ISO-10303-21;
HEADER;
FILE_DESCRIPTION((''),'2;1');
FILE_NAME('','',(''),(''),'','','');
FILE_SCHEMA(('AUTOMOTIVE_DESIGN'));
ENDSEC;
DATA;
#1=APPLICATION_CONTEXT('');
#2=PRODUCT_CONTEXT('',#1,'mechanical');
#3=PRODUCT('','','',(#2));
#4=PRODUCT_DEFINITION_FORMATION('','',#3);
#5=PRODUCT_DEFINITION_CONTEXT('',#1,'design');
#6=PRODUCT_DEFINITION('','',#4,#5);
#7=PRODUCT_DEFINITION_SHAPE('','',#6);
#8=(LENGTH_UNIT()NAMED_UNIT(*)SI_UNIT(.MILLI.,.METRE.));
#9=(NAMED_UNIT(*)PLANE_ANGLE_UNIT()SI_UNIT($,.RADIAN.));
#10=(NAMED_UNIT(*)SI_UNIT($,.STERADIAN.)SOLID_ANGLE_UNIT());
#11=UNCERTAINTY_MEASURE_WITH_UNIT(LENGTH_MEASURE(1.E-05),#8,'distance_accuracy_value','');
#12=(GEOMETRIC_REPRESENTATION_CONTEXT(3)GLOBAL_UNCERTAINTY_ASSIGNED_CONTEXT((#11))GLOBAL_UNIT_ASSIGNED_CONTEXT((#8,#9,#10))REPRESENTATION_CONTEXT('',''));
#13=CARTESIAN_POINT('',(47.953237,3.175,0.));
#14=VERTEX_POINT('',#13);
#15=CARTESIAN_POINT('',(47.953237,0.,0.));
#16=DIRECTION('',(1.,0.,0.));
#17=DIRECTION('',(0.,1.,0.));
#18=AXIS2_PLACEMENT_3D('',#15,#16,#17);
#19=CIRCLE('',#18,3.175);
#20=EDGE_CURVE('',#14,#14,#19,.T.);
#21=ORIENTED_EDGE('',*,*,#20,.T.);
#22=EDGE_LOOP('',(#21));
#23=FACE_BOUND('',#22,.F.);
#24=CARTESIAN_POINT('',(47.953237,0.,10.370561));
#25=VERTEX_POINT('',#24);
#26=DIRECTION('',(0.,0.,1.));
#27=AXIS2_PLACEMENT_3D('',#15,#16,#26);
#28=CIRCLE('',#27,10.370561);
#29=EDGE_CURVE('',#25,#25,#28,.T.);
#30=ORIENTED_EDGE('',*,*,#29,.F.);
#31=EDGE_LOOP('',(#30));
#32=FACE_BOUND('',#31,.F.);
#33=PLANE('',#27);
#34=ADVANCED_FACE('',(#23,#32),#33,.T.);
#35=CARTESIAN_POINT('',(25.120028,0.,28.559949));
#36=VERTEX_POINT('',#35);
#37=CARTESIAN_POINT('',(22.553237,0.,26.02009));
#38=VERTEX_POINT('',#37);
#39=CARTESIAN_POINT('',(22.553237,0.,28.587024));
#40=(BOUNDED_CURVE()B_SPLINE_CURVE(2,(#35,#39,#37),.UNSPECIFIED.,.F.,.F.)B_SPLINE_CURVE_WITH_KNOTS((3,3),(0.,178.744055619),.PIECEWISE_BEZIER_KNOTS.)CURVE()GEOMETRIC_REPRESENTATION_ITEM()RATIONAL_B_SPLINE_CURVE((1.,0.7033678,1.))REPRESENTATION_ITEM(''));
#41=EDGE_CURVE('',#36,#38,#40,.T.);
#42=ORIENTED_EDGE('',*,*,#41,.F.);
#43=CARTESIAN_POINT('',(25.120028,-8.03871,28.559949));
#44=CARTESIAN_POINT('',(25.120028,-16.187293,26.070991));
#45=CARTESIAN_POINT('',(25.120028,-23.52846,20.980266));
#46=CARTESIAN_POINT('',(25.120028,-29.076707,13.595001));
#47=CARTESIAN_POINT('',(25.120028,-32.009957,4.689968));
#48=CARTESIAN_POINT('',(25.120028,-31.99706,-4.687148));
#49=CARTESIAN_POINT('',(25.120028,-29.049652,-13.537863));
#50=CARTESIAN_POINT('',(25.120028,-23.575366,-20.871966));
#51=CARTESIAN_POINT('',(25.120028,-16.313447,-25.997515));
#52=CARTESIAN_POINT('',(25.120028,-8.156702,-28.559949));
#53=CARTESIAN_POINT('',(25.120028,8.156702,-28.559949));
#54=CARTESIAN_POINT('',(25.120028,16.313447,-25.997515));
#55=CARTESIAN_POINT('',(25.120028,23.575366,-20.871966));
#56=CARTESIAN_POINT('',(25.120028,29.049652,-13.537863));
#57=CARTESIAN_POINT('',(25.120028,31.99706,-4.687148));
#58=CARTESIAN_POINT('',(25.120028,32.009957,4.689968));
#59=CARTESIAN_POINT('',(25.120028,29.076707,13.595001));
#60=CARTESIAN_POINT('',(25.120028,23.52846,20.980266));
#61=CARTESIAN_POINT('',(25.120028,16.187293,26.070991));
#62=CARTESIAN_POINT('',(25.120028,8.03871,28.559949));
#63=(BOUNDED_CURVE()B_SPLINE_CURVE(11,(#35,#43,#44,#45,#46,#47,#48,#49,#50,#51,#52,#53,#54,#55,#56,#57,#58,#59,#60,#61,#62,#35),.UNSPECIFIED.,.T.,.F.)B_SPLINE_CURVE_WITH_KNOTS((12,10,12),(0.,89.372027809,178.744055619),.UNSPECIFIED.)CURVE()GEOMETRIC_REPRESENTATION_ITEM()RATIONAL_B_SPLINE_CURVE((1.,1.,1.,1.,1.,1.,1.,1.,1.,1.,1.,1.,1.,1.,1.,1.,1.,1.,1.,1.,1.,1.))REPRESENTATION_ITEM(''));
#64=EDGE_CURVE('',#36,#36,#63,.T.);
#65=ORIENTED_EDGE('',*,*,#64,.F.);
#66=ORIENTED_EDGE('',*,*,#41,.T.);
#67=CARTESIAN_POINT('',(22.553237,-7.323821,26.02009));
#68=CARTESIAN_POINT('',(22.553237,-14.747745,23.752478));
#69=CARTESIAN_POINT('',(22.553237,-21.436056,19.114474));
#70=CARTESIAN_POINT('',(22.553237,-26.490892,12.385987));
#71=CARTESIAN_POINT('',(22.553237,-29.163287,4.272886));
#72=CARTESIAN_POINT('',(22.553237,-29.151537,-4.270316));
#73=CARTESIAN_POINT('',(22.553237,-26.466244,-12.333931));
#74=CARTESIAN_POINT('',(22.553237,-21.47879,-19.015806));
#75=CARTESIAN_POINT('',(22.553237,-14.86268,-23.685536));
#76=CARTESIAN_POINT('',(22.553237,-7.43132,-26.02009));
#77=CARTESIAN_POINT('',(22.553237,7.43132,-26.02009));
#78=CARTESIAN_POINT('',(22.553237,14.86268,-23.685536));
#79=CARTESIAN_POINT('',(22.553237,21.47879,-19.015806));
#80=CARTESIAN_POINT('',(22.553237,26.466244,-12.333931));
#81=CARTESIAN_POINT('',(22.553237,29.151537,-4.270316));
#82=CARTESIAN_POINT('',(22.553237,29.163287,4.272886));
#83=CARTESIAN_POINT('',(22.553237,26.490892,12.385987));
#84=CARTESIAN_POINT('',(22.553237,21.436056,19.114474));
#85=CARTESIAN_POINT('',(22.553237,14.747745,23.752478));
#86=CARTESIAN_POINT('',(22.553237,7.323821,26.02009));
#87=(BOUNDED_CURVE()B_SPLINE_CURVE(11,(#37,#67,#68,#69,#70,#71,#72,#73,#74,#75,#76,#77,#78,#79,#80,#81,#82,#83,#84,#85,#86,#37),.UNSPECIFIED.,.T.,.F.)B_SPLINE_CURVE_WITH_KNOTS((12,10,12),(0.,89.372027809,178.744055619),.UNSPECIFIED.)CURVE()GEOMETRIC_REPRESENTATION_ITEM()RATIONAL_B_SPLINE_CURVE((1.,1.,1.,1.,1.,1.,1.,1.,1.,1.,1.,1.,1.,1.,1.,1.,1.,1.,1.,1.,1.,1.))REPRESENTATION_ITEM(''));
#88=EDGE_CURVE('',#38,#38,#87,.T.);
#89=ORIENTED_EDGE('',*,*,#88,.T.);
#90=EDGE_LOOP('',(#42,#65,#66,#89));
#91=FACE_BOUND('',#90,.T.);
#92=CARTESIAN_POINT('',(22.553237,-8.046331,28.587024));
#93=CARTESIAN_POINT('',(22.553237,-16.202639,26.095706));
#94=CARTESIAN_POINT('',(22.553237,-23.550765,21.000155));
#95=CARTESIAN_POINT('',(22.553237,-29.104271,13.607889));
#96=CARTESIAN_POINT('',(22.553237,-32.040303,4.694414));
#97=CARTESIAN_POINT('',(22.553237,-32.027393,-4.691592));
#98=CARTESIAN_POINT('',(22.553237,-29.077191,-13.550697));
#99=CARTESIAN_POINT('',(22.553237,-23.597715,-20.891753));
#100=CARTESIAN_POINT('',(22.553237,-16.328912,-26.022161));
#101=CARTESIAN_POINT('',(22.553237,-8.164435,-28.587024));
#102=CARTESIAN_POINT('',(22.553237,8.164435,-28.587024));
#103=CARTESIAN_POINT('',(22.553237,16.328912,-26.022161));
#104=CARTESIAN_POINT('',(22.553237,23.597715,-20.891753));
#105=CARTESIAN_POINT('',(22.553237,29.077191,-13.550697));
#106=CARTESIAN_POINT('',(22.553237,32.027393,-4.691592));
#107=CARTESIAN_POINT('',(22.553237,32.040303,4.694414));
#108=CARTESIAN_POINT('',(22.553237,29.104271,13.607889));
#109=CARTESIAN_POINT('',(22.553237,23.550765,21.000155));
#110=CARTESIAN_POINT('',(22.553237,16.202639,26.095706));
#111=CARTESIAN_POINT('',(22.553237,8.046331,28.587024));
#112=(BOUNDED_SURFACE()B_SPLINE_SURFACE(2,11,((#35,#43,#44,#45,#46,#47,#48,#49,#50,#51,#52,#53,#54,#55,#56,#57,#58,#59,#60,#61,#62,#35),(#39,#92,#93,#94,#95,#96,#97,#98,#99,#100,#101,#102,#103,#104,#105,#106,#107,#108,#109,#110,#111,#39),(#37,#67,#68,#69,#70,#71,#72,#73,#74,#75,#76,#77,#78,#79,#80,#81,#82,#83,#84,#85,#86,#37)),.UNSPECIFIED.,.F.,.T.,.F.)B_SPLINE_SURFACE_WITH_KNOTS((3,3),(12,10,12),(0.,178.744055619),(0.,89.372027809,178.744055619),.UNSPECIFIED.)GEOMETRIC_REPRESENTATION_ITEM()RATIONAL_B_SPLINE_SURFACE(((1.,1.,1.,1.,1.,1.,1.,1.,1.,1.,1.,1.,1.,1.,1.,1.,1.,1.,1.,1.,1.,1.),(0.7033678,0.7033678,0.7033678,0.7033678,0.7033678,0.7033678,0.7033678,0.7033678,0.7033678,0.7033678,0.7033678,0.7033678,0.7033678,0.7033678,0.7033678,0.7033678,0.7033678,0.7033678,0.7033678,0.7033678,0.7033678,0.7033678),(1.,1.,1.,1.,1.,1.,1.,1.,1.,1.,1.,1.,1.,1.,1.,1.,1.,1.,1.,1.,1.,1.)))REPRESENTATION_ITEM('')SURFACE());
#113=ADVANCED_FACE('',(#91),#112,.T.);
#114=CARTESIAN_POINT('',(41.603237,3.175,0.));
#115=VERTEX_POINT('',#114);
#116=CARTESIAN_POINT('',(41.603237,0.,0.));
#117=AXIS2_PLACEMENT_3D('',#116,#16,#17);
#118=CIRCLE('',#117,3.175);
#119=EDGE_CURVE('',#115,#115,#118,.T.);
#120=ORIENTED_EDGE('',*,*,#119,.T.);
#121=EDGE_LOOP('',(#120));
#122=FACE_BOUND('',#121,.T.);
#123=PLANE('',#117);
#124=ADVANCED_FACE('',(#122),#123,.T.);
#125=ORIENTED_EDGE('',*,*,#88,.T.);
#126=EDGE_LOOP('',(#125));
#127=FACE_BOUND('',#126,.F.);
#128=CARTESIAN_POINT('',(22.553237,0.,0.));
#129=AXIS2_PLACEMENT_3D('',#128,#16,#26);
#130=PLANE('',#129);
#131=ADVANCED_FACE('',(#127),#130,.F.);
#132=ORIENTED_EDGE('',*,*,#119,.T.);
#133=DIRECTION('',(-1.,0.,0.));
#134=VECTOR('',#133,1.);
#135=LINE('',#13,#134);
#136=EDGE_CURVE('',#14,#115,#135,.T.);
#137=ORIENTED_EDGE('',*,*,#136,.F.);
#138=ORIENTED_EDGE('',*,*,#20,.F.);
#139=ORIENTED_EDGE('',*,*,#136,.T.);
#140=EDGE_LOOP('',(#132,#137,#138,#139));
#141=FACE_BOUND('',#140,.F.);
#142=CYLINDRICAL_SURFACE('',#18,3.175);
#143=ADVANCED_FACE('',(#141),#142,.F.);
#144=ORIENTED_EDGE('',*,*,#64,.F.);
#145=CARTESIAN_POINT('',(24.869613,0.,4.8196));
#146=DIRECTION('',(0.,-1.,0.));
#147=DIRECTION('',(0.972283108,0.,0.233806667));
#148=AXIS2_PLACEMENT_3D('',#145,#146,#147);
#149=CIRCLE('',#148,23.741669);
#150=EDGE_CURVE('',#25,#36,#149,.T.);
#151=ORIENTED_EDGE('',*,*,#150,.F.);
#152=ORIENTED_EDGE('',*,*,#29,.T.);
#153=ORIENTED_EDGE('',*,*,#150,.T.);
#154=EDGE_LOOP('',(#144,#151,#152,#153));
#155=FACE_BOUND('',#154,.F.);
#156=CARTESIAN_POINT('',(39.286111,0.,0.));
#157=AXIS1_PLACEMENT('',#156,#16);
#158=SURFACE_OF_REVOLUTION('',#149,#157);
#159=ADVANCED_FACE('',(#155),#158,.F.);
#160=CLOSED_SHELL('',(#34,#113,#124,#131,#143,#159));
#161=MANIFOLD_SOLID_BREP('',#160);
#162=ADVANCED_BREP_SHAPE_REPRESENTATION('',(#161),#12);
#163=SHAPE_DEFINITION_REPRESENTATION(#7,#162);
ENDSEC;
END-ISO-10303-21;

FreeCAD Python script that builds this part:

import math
import FreeCAD as App
import Part
import Sketcher

V = App.Vector
Q = App.Units.Quantity


def edges_at(feature, points):
    """Names of the edges that pass closest to the given points."""
    edges = feature.Shape.Edges
    near = lambda p: min(range(len(edges)), key=lambda i: edges[i].distToShape(Part.Vertex(*p))[0])
    return sorted({f"Edge{near(p) + 1}" for p in points})

doc = App.newDocument("Part")
body = doc.addObject("PartDesign::Body", "Body")

# Sketch on XZ plane
sketch1 = body.newObject("Sketcher::SketchObject", "Sketch")
sketch1.AttachmentSupport = (doc.getObject("XZ_Plane"), [""])
sketch1.MapMode = "FlatFace"
sketch1.addGeometry(Part.ArcOfCircle(Part.Circle(V(24.869613, 4.8196, 0), V(0, 0, 1), 23.741669), math.radians(13.52129), math.radians(95.599018)), False)
sketch1.addGeometry(Part.LineSegment(V(22.553237, 28.448, 0), V(22.553237, 0, 0)), False)
sketch1.addGeometry(Part.LineSegment(V(22.553237, 0, 0), V(47.953237, 0, 0)), False)
sketch1.addGeometry(Part.LineSegment(V(47.953237, 0, 0), V(47.953237, 10.370561, 0)), False)
sketch1.addConstraint(Sketcher.Constraint("Coincident", 0, 2, 1, 1))
sketch1.addConstraint(Sketcher.Constraint("Coincident", 1, 2, 2, 1))
sketch1.addConstraint(Sketcher.Constraint("Coincident", 2, 2, 3, 1))
sketch1.addConstraint(Sketcher.Constraint("Coincident", 3, 2, 0, 1))
sketch1.addConstraint(Sketcher.Constraint("Vertical", 1))
sketch1.addConstraint(Sketcher.Constraint("Horizontal", 2))
sketch1.addConstraint(Sketcher.Constraint("Vertical", 3))
sketch1.addConstraint(Sketcher.Constraint("PointOnObject", 1, 2, -1))
sketch1.addConstraint(Sketcher.Constraint("DistanceX", 2, 1, 2, 2, Q("1 in")))
sketch1.addConstraint(Sketcher.Constraint("DistanceY", 1, 2, 1, 1, Q("1.12 in")))
sketch1.addConstraint(Sketcher.Constraint("Radius", 0, 23.741669))
sketch1.addConstraint(Sketcher.Constraint("DistanceY", 3, 1, 3, 2, 10.370561))
sketch1.addConstraint(Sketcher.Constraint("DistanceX", -1, 1, 0, 3, 24.869613))
revolution = body.newObject("PartDesign::Revolution", "Revolution")
revolution.Profile = sketch1
revolution.ReferenceAxis = (sketch1, ["H_Axis"])
revolution.Angle = 360
doc.recompute()

fillet = body.newObject("PartDesign::Fillet", "Fillet")
fillet.Base = (revolution, edges_at(revolution, [(22.553, 0, -28.448)]))
fillet.Radius = Q("0.1 in")

# Sketch on YZ plane
sketch2 = body.newObject("Sketcher::SketchObject", "Sketch001")
sketch2.AttachmentSupport = (doc.getObject("YZ_Plane"), [""])
sketch2.MapMode = "FlatFace"
sketch2.AttachmentOffset = App.Placement(V(0, 0, 47.953237), App.Rotation())
sketch2.addGeometry(Part.Circle(V(0, 0, 0), V(0, 0, 1), 3.175), False)
sketch2.addConstraint(Sketcher.Constraint("Coincident", 0, 3, -1, 1))
sketch2.addConstraint(Sketcher.Constraint("Diameter", 0, Q("0.25 in")))
pocket1 = body.newObject("PartDesign::Pocket", "Pocket")
pocket1.Profile = sketch2
pocket1.Length = Q("0.25 in")

doc.recompute()
